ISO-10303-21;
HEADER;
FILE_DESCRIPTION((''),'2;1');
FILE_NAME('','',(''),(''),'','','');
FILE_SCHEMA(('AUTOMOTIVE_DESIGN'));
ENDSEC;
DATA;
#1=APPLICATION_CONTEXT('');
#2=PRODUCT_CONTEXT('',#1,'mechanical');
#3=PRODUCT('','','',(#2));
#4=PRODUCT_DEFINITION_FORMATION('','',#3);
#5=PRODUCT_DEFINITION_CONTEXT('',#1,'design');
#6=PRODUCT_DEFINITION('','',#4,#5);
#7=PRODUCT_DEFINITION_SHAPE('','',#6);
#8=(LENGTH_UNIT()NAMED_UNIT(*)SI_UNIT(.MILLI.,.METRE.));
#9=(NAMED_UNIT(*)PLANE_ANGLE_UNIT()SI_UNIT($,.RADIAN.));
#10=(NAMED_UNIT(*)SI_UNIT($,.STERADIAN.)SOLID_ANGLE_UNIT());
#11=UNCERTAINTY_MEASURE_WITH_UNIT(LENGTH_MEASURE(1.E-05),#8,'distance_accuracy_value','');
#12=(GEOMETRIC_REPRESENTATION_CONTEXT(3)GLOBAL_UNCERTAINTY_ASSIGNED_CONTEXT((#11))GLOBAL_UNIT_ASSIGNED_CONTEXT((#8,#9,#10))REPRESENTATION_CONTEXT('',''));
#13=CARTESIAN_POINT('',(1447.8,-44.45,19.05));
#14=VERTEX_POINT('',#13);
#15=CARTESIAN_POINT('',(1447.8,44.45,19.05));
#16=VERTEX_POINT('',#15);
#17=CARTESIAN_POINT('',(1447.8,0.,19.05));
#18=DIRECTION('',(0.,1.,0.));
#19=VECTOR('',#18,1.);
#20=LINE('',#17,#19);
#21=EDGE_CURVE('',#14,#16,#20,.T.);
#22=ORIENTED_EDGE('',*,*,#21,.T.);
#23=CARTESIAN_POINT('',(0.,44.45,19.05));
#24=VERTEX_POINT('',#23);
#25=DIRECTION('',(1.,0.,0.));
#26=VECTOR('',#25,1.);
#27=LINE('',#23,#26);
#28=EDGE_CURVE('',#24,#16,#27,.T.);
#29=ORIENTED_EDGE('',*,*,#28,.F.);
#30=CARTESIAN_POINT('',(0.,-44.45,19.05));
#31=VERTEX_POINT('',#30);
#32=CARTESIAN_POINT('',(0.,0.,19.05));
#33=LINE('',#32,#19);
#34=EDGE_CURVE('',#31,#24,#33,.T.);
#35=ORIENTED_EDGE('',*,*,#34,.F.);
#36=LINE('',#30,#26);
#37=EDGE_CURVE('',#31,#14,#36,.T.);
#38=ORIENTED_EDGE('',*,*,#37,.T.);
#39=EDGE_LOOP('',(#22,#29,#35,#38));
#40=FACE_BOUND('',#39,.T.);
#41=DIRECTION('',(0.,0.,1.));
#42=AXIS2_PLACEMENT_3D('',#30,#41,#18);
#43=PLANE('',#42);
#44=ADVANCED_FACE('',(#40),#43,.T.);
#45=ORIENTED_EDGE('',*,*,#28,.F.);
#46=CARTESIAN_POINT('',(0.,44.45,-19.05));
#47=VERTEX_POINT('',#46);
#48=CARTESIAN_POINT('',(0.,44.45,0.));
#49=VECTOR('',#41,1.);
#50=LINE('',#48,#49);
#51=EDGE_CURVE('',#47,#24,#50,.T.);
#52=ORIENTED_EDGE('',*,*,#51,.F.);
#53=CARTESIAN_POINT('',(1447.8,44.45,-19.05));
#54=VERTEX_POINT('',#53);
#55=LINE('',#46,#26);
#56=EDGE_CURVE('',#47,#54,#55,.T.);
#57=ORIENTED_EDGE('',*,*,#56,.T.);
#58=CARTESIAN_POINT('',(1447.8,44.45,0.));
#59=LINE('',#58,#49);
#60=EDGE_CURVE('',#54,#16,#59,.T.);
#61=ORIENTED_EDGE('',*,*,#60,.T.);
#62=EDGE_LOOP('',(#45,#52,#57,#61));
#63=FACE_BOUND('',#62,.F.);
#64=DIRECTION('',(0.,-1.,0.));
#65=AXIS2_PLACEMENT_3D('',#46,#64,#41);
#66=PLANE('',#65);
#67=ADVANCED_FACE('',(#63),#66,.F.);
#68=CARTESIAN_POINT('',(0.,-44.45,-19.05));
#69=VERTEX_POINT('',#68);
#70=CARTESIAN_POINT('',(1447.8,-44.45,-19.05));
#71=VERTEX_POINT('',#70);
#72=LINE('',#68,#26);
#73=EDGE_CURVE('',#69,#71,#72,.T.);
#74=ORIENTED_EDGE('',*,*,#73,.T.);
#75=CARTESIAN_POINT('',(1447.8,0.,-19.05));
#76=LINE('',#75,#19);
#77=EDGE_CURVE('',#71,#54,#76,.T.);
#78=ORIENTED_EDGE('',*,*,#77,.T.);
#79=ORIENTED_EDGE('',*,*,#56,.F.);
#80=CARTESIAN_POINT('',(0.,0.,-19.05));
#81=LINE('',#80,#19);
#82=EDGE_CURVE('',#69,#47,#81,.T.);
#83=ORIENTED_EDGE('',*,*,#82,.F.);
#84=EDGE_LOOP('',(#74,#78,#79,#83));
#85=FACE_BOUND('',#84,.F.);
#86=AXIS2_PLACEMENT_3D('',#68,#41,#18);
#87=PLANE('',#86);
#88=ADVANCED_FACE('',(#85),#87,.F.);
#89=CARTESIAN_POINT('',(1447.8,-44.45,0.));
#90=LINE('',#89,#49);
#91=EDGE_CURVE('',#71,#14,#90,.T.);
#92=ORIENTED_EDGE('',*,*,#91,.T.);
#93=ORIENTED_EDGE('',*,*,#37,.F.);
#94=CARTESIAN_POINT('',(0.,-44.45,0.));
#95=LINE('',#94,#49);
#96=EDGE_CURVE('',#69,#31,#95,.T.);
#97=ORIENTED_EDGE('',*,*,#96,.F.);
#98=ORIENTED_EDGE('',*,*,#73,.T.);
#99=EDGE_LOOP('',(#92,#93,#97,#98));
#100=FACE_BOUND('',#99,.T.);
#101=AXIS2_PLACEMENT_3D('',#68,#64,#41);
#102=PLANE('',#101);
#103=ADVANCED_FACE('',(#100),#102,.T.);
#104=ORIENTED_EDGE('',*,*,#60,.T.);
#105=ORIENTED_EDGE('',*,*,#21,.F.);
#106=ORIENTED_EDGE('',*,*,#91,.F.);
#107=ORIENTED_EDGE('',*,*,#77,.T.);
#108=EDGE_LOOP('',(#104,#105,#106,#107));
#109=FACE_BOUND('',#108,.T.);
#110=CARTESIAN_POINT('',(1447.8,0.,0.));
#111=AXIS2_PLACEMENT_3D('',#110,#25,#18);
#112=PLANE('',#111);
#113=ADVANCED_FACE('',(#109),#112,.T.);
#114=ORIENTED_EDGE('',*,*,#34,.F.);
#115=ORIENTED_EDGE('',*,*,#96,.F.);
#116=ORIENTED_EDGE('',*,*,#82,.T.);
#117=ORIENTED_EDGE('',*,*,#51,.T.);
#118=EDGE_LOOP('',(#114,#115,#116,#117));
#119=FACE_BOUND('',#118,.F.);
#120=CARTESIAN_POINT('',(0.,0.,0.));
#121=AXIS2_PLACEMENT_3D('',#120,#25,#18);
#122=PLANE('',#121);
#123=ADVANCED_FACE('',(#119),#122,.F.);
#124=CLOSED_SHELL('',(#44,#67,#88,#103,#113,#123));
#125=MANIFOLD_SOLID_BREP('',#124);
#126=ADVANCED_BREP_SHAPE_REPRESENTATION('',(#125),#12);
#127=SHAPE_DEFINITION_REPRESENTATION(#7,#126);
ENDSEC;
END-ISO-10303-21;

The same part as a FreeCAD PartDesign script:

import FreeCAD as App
import Part
import Sketcher
Q = App.Units.Quantity


def add_polygon(sketch, points):
    """Adds a closed chain of lines whose ends are joined by coincident constraints."""
    first, n = sketch.GeometryCount, len(points)
    for a, b in zip(points, points[1:] + points[:1]):
        sketch.addGeometry(Part.LineSegment(App.Vector(*a, 0), App.Vector(*b, 0)), False)
    for i in range(n):
        sketch.addConstraint(Sketcher.Constraint("Coincident", first + i, 2, first + (i + 1) % n, 1))

doc = App.newDocument("Part")
body = doc.addObject("PartDesign::Body", "Body")

# Sketch on YZ plane
sketch1 = doc.addObject("Sketcher::SketchObject", "Sketch")
body.addObject(sketch1)
sketch1.AttachmentSupport = (doc.YZ_Plane, [""])
sketch1.MapMode = "FlatFace"
add_polygon(sketch1, [(-44, 19), (-44, -19), (44, -19), (44, 19)])  # lines 0-3
sketch1.addConstraint([
    Sketcher.Constraint("Vertical", 0),
    Sketcher.Constraint("Horizontal", 1),
    Sketcher.Constraint("Vertical", 2),
    Sketcher.Constraint("Horizontal", 3),
    Sketcher.Constraint("Symmetric", 0, 2, 2, 2, -1, 1),
    Sketcher.Constraint("DistanceX", 1, 1, 1, 2, Q("3.5 in")),
    Sketcher.Constraint("DistanceY", 0, 2, 0, 1, Q("1.5 in")),
])
pad1 = doc.addObject("PartDesign::Pad", "Pad")
body.addObject(pad1)
pad1.Profile = sketch1
pad1.Length = Q("57 in")

doc.recompute()
